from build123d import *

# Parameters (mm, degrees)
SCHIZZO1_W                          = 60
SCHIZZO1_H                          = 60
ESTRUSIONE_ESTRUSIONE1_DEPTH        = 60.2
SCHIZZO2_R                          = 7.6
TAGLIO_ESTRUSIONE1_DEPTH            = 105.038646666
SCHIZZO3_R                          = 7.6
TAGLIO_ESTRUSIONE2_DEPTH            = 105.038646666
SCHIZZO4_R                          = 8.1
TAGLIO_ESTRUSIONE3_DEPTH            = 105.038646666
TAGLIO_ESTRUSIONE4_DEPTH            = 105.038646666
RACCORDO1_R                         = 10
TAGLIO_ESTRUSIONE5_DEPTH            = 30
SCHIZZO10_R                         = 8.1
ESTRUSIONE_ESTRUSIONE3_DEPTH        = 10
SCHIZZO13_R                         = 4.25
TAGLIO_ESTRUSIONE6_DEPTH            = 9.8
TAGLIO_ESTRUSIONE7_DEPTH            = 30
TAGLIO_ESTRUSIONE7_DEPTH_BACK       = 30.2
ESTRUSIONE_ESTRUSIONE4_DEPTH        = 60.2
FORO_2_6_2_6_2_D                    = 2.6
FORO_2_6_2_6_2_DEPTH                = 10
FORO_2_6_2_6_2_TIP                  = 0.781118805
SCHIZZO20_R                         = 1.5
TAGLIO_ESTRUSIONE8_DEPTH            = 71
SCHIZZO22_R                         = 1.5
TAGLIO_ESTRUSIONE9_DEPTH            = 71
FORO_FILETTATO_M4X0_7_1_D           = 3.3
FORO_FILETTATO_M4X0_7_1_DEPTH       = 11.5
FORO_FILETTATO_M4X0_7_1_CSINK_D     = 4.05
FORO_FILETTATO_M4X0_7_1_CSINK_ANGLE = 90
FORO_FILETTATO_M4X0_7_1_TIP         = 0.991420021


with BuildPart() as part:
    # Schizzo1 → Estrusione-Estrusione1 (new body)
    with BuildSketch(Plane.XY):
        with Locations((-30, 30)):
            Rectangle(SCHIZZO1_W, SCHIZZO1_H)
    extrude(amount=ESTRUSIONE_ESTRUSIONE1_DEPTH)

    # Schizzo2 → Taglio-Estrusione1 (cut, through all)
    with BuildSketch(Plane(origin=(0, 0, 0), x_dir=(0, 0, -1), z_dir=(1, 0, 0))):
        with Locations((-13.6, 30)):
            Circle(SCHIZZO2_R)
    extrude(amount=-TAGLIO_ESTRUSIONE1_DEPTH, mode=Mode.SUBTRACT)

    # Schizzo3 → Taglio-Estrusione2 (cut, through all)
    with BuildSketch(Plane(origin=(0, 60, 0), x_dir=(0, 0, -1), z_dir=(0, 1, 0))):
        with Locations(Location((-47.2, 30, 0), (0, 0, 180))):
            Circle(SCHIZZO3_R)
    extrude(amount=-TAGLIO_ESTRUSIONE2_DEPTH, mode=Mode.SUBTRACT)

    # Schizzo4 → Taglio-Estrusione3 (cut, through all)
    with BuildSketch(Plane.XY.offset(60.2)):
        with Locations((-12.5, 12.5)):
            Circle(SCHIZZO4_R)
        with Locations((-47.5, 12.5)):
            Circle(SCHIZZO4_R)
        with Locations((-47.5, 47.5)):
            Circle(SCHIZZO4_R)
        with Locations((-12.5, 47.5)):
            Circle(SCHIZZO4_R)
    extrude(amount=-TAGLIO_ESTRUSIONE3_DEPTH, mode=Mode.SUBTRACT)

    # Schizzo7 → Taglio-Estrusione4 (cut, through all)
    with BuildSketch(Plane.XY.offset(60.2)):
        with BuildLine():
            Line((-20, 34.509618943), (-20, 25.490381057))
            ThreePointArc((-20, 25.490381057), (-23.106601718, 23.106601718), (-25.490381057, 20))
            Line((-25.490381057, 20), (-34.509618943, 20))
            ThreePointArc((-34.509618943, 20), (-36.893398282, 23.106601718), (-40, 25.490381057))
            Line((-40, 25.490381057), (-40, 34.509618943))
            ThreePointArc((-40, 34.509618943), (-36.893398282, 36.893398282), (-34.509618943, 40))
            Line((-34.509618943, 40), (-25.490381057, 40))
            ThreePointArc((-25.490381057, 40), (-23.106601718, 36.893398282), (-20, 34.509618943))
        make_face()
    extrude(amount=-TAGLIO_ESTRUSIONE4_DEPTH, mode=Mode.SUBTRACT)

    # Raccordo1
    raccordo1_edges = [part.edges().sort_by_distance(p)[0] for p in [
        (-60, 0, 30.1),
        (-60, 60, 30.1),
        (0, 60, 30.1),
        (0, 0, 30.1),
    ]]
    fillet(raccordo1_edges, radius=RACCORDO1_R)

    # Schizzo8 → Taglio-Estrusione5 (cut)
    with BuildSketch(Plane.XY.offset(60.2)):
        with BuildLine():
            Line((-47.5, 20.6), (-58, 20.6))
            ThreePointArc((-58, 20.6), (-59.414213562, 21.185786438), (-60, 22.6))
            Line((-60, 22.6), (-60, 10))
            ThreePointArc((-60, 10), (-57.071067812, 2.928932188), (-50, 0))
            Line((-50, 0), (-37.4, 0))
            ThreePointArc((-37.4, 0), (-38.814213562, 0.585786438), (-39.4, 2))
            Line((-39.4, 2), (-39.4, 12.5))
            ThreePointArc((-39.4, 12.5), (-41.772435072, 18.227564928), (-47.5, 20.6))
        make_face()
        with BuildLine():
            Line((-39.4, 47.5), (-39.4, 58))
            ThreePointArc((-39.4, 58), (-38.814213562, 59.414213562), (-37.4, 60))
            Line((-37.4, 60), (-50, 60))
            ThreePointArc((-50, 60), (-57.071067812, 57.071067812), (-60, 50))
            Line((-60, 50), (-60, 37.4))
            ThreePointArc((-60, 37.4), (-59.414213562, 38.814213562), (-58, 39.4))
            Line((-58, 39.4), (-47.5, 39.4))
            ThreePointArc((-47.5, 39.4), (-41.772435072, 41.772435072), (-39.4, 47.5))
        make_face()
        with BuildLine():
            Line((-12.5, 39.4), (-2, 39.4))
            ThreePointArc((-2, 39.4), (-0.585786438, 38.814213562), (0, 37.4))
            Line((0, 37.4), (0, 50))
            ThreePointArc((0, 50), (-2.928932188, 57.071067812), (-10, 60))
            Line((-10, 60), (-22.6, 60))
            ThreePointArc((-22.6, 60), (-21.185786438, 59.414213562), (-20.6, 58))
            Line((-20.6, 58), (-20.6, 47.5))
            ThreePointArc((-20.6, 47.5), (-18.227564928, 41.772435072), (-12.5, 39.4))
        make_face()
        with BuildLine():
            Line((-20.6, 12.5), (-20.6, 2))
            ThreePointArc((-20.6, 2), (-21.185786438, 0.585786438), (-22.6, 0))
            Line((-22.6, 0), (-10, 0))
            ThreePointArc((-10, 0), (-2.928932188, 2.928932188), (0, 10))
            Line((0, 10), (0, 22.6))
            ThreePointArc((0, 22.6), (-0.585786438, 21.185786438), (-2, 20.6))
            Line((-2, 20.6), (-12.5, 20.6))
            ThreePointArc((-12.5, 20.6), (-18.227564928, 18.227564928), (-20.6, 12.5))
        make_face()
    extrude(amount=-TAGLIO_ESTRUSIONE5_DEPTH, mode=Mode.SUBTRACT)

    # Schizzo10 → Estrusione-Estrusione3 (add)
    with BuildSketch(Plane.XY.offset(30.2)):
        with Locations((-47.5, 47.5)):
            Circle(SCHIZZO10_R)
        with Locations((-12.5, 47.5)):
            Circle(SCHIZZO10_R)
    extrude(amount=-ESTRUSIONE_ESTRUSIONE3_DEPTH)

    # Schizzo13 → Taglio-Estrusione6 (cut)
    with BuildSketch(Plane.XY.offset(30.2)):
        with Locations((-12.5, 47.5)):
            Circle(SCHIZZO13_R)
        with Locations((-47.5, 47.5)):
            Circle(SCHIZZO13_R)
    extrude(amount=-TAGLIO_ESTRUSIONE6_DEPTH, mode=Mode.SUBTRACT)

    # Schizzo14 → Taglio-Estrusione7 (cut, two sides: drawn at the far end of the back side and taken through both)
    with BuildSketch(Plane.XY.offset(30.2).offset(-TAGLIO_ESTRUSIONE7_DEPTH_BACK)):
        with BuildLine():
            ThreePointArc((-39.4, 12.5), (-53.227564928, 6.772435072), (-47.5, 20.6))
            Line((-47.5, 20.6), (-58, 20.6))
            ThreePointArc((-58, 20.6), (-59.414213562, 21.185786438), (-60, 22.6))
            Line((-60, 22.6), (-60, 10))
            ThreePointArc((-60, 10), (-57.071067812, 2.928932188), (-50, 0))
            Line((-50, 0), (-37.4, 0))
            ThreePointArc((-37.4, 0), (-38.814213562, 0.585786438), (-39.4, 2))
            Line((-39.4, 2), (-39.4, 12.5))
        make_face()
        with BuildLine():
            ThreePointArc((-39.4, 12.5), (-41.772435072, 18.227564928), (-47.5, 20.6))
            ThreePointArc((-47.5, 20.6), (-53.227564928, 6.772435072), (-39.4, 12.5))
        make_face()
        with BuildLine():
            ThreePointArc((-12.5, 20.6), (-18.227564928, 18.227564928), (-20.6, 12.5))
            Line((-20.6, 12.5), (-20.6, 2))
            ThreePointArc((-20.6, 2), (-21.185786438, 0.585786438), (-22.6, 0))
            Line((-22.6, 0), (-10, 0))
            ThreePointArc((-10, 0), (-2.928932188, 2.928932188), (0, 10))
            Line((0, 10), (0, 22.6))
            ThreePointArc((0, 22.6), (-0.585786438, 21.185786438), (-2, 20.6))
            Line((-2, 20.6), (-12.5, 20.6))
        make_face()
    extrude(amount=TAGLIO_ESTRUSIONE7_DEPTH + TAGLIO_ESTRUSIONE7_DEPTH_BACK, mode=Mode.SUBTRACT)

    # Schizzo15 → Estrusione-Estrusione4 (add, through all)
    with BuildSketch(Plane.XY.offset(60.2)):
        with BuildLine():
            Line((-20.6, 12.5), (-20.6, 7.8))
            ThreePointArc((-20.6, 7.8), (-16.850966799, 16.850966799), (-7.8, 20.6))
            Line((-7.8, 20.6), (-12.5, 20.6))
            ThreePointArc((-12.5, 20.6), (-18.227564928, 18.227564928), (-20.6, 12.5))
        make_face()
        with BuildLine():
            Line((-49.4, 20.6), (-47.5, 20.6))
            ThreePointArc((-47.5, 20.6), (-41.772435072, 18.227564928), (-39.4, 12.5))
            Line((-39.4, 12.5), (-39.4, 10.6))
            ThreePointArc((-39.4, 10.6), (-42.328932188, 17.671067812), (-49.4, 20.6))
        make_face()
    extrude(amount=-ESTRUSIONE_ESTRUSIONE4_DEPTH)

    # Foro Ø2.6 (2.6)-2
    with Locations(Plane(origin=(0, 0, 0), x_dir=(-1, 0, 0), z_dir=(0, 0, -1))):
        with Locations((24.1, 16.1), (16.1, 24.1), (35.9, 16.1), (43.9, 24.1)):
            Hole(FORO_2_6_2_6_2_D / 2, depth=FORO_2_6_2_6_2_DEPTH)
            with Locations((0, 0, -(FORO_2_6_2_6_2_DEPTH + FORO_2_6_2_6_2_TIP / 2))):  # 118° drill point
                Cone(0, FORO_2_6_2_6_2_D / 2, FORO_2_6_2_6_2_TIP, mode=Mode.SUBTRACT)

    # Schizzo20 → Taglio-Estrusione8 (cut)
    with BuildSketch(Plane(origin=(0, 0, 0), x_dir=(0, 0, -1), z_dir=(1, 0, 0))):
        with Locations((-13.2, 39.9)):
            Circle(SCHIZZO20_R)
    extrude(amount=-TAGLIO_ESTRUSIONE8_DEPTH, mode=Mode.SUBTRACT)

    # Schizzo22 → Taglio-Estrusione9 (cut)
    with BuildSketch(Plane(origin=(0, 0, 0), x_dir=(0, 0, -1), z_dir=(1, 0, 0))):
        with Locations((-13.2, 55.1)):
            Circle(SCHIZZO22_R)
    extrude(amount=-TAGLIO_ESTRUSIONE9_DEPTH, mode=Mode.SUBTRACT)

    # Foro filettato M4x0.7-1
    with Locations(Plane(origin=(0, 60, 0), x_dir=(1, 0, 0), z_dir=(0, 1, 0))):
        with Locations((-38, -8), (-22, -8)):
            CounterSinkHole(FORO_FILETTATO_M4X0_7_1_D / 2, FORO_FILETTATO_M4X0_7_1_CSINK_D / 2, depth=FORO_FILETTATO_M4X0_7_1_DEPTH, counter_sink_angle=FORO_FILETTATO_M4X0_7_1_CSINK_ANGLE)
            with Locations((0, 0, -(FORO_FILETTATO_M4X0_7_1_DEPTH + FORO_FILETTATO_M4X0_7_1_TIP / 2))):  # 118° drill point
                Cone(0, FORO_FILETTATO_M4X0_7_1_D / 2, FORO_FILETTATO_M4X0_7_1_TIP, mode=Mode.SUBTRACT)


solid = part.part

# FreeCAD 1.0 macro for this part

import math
import FreeCAD as App
import Part
import Sketcher

V = App.Vector
Q = App.Units.Quantity


def edges_at(feature, points):
    """Names of the edges that pass closest to the given points."""
    edges = feature.Shape.Edges
    near = lambda p: min(range(len(edges)), key=lambda i: edges[i].distToShape(Part.Vertex(*p))[0])
    return sorted({f"Edge{near(p) + 1}" for p in points})

doc = App.newDocument("Part")
body = doc.addObject("PartDesign::Body", "Body")

# Sketch on XY plane
sketch1 = doc.addObject("Sketcher::SketchObject", "Sketch")
body.addObject(sketch1)
sketch1.AttachmentSupport = (doc.XY_Plane, [""])
sketch1.MapMode = "FlatFace"
sketch1.addGeometry([
    Part.LineSegment(V(-60, 60, 0), V(-60, 0, 0)),
    Part.LineSegment(V(-60, 0, 0), V(0, 0, 0)),
    Part.LineSegment(V(0, 0, 0), V(0, 60, 0)),
    Part.LineSegment(V(0, 60, 0), V(-60, 60, 0)),
], False)
sketch1.addConstraint([
    Sketcher.Constraint("Coincident", 0, 2, 1, 1),
    Sketcher.Constraint("Coincident", 1, 2, 2, 1),
    Sketcher.Constraint("Coincident", 2, 2, 3, 1),
    Sketcher.Constraint("Coincident", 3, 2, 0, 1),
    Sketcher.Constraint("Vertical", 0),
    Sketcher.Constraint("Horizontal", 1),
    Sketcher.Constraint("Vertical", 2),
    Sketcher.Constraint("Horizontal", 3),
    Sketcher.Constraint("Coincident", 1, 2, -1, 1),
    Sketcher.Constraint("Equal", 3, 0),
    Sketcher.Constraint("DistanceX", 1, 1, 1, 2, Q("60 mm")),
])
pad1 = doc.addObject("PartDesign::Pad", "Pad")
body.addObject(pad1)
pad1.Profile = sketch1
pad1.Length = 60.2

# Sketch on YZ plane
sketch2 = doc.addObject("Sketcher::SketchObject", "Sketch001")
body.addObject(sketch2)
sketch2.AttachmentSupport = (doc.YZ_Plane, [""])
sketch2.MapMode = "FlatFace"
sketch2.addGeometry(Part.Circle(V(30, 13.6, 0), V(0, 0, 1), 7.6), False)
sketch2.addConstraint([
    Sketcher.Constraint("Diameter", 0, Q("15.2 mm")),
    Sketcher.Constraint("DistanceX", -1, 1, 0, 3, Q("30 mm")),
    Sketcher.Constraint("DistanceY", -1, 1, 0, 3, Q("13.6 mm")),
])
pocket1 = doc.addObject("PartDesign::Pocket", "Pocket")
body.addObject(pocket1)
pocket1.Profile = sketch2
pocket1.Type = "ThroughAll"

# Sketch on XZ plane
sketch3 = doc.addObject("Sketcher::SketchObject", "Sketch002")
body.addObject(sketch3)
sketch3.AttachmentSupport = (doc.XZ_Plane, [""])
sketch3.MapMode = "FlatFace"
sketch3.AttachmentOffset = App.Placement(V(0, 0, -60), App.Rotation())
sketch3.addGeometry(Part.Circle(V(-30, 47.2, 0), V(0, 0, 1), 7.6), False)
sketch3.addConstraint([
    Sketcher.Constraint("Diameter", 0, Q("15.2 mm")),
    Sketcher.Constraint("DistanceX", 0, 3, -1, 1, Q("30 mm")),
    Sketcher.Constraint("DistanceY", -1, 1, 0, 3, Q("47.2 mm")),
])
pocket2 = doc.addObject("PartDesign::Pocket", "Pocket001")
body.addObject(pocket2)
pocket2.Profile = sketch3
pocket2.Type = "ThroughAll"
pocket2.Reversed = True

# Sketch on XY plane
sketch4 = doc.addObject("Sketcher::SketchObject", "Sketch003")
body.addObject(sketch4)
sketch4.AttachmentSupport = (doc.XY_Plane, [""])
sketch4.MapMode = "FlatFace"
sketch4.AttachmentOffset = App.Placement(V(0, 0, 60.2), App.Rotation())
sketch4.addGeometry([
    Part.Circle(V(-12.5, 12.5, 0), V(0, 0, 1), 8.1),
    Part.Circle(V(-47.5, 12.5, 0), V(0, 0, 1), 8.1),
    Part.Circle(V(-47.5, 47.5, 0), V(0, 0, 1), 8.1),
    Part.Circle(V(-12.5, 47.5, 0), V(0, 0, 1), 8.1),
], False)
sketch4.addConstraint([
    Sketcher.Constraint("Equal", 0, 1),
    Sketcher.Constraint("Equal", 1, 2),
    Sketcher.Constraint("Equal", 2, 3),
    Sketcher.Constraint("Horizontal", 0, 3, 1, 3),
    Sketcher.Constraint("Horizontal", 2, 3, 3, 3),
    Sketcher.Constraint("Vertical", 1, 3, 2, 3),
    Sketcher.Constraint("Vertical", 0, 3, 3, 3),
    Sketcher.Constraint("Diameter", 0, Q("16.2 mm")),
    Sketcher.Constraint("DistanceX", 1, 3, 0, 3, Q("35 mm")),
    Sketcher.Constraint("DistanceY", 1, 3, 2, 3, Q("35 mm")),
    Sketcher.Constraint("DistanceX", 0, 3, -1, 1, Q("12.5 mm")),
    Sketcher.Constraint("DistanceY", -1, 1, 0, 3, Q("12.5 mm")),
])
pocket3 = doc.addObject("PartDesign::Pocket", "Pocket002")
body.addObject(pocket3)
pocket3.Profile = sketch4
pocket3.Type = "ThroughAll"

# Sketch on XY plane
sketch5 = doc.addObject("Sketcher::SketchObject", "Sketch004")
body.addObject(sketch5)
sketch5.AttachmentSupport = (doc.XY_Plane, [""])
sketch5.MapMode = "FlatFace"
sketch5.AttachmentOffset = App.Placement(V(0, 0, 60.2), App.Rotation())
sketch5.addGeometry([
    Part.LineSegment(V(-20, 25.490381, 0), V(-20, 34.509619, 0)),  # 0
    Part.ArcOfCircle(Part.Circle(V(-12.5, 47.5, 0), V(0, 0, 1), 15), math.radians(-150), math.radians(-120)),  # 1
    Part.LineSegment(V(-25.490381, 40, 0), V(-34.509619, 40, 0)),  # 2
    Part.ArcOfCircle(Part.Circle(V(-47.5, 47.5, 0), V(0, 0, 1), 15), math.radians(-60), math.radians(-30)),  # 3
    Part.LineSegment(V(-40, 34.509619, 0), V(-40, 25.490381, 0)),  # 4
    Part.ArcOfCircle(Part.Circle(V(-47.5, 12.5, 0), V(0, 0, 1), 15), math.radians(30), math.radians(60)),  # 5
    Part.LineSegment(V(-34.509619, 20, 0), V(-25.490381, 20, 0)),  # 6
    Part.ArcOfCircle(Part.Circle(V(-12.5, 12.5, 0), V(0, 0, 1), 15), math.radians(120), math.radians(150)),  # 7
], False)
sketch5.addConstraint([
    Sketcher.Constraint("Coincident", 0, 2, 1, 2),
    Sketcher.Constraint("Coincident", 1, 1, 2, 1),
    Sketcher.Constraint("Coincident", 2, 2, 3, 2),
    Sketcher.Constraint("Coincident", 3, 1, 4, 1),
    Sketcher.Constraint("Coincident", 4, 2, 5, 2),
    Sketcher.Constraint("Coincident", 5, 1, 6, 1),
    Sketcher.Constraint("Coincident", 6, 2, 7, 2),
    Sketcher.Constraint("Coincident", 7, 1, 0, 1),
    Sketcher.Constraint("Vertical", 0),
    Sketcher.Constraint("Horizontal", 2),
    Sketcher.Constraint("Vertical", 4),
    Sketcher.Constraint("Horizontal", 6),
    Sketcher.Constraint("Equal", 1, 3),
    Sketcher.Constraint("Equal", 3, 5),
    Sketcher.Constraint("Equal", 5, 7),
    Sketcher.Constraint("Horizontal", 1, 3, 3, 3),
    Sketcher.Constraint("Horizontal", 5, 3, 7, 3),
    Sketcher.Constraint("Horizontal", 0, 2, 3, 1),
    Sketcher.Constraint("Horizontal", 4, 2, 7, 1),
    Sketcher.Constraint("Vertical", 3, 3, 5, 3),
    Sketcher.Constraint("Vertical", 2, 2, 5, 1),
    Sketcher.Constraint("Equal", 6, 0),
    Sketcher.Constraint("Radius", 1, Q("15 mm")),
    Sketcher.Constraint("DistanceX", 0, 2, -1, 1, Q("20 mm")),
    Sketcher.Constraint("DistanceY", -1, 1, 1, 1, Q("40 mm")),
    Sketcher.Constraint("DistanceX", 3, 1, -1, 1, Q("40 mm")),
    Sketcher.Constraint("DistanceY", -1, 1, 5, 1, Q("20 mm")),
    Sketcher.Constraint("DistanceX", 3, 3, 1, 3, Q("35 mm")),
])
pocket4 = doc.addObject("PartDesign::Pocket", "Pocket003")
body.addObject(pocket4)
pocket4.Profile = sketch5
pocket4.Type = "ThroughAll"
doc.recompute()

fillet = doc.addObject("PartDesign::Fillet", "Fillet")
body.addObject(fillet)
fillet.Base = (pocket4, edges_at(pocket4, [
    (-60, 0, 30.1),
    (-60, 60, 30.1),
    (0, 60, 30.1),
    (0, 0, 30.1),
]))
fillet.Radius = 10

# Sketch on XY plane
sketch6 = doc.addObject("Sketcher::SketchObject", "Sketch005")
body.addObject(sketch6)
sketch6.AttachmentSupport = (doc.XY_Plane, [""])
sketch6.MapMode = "FlatFace"
sketch6.AttachmentOffset = App.Placement(V(0, 0, 60.2), App.Rotation())
sketch6.addGeometry([
    Part.LineSegment(V(-47.5, 20.6, 0), V(-58, 20.6, 0)),  # 0
    Part.ArcOfCircle(Part.Circle(V(-58, 22.6, 0), V(0, 0, 1), 2), math.radians(-180), math.radians(-90)),  # 1
    Part.LineSegment(V(-60, 22.6, 0), V(-60, 10, 0)),  # 2
    Part.ArcOfCircle(Part.Circle(V(-50, 10, 0), V(0, 0, 1), 10), math.radians(180), math.radians(270)),  # 3
    Part.LineSegment(V(-50, 0, 0), V(-37.4, 0, 0)),  # 4
    Part.ArcOfCircle(Part.Circle(V(-37.4, 2, 0), V(0, 0, 1), 2), math.radians(-180), math.radians(-90)),  # 5
    Part.LineSegment(V(-39.4, 2, 0), V(-39.4, 12.5, 0)),  # 6
    Part.ArcOfCircle(Part.Circle(V(-47.5, 12.5, 0), V(0, 0, 1), 8.1), math.radians(0), math.radians(90)),  # 7
    Part.LineSegment(V(-39.4, 47.5, 0), V(-39.4, 58, 0)),  # 8
    Part.ArcOfCircle(Part.Circle(V(-37.4, 58, 0), V(0, 0, 1), 2), math.radians(90), math.radians(180)),  # 9
    Part.LineSegment(V(-37.4, 60, 0), V(-50, 60, 0)),  # 10
    Part.ArcOfCircle(Part.Circle(V(-50, 50, 0), V(0, 0, 1), 10), math.radians(90), math.radians(180)),  # 11
    Part.LineSegment(V(-60, 50, 0), V(-60, 37.4, 0)),  # 12
    Part.ArcOfCircle(Part.Circle(V(-58, 37.4, 0), V(0, 0, 1), 2), math.radians(90), math.radians(180)),  # 13
    Part.LineSegment(V(-58, 39.4, 0), V(-47.5, 39.4, 0)),  # 14
    Part.ArcOfCircle(Part.Circle(V(-47.5, 47.5, 0), V(0, 0, 1), 8.1), math.radians(-90), math.radians(0)),  # 15
    Part.LineSegment(V(-12.5, 39.4, 0), V(-2, 39.4, 0)),  # 16
    Part.ArcOfCircle(Part.Circle(V(-2, 37.4, 0), V(0, 0, 1), 2), math.radians(0), math.radians(90)),  # 17
    Part.LineSegment(V(0, 37.4, 0), V(0, 50, 0)),  # 18
    Part.ArcOfCircle(Part.Circle(V(-10, 50, 0), V(0, 0, 1), 10), math.radians(0), math.radians(90)),  # 19
    Part.LineSegment(V(-10, 60, 0), V(-22.6, 60, 0)),  # 20
    Part.ArcOfCircle(Part.Circle(V(-22.6, 58, 0), V(0, 0, 1), 2), math.radians(0), math.radians(90)),  # 21
    Part.LineSegment(V(-20.6, 58, 0), V(-20.6, 47.5, 0)),  # 22
    Part.ArcOfCircle(Part.Circle(V(-12.5, 47.5, 0), V(0, 0, 1), 8.1), math.radians(180), math.radians(270)),  # 23
    Part.LineSegment(V(-20.6, 12.5, 0), V(-20.6, 2, 0)),  # 24
    Part.ArcOfCircle(Part.Circle(V(-22.6, 2, 0), V(0, 0, 1), 2), math.radians(-90), math.radians(0)),  # 25
    Part.LineSegment(V(-22.6, 0, 0), V(-10, 0, 0)),  # 26
    Part.ArcOfCircle(Part.Circle(V(-10, 10, 0), V(0, 0, 1), 10), math.radians(-90), math.radians(0)),  # 27
    Part.LineSegment(V(0, 10, 0), V(0, 22.6, 0)),  # 28
    Part.ArcOfCircle(Part.Circle(V(-2, 22.6, 0), V(0, 0, 1), 2), math.radians(-90), math.radians(0)),  # 29
    Part.LineSegment(V(-2, 20.6, 0), V(-12.5, 20.6, 0)),  # 30
    Part.ArcOfCircle(Part.Circle(V(-12.5, 12.5, 0), V(0, 0, 1), 8.1), math.radians(90), math.radians(180)),  # 31
], False)
sketch6.addConstraint([
    Sketcher.Constraint("Tangent", 0, 2, 1, 2),
    Sketcher.Constraint("Tangent", 1, 1, 2, 1),
    Sketcher.Constraint("Tangent", 2, 2, 3, 1),
    Sketcher.Constraint("Tangent", 3, 2, 4, 1),
    Sketcher.Constraint("Tangent", 4, 2, 5, 2),
    Sketcher.Constraint("Tangent", 5, 1, 6, 1),
    Sketcher.Constraint("Tangent", 6, 2, 7, 1),
    Sketcher.Constraint("Tangent", 7, 2, 0, 1),
    Sketcher.Constraint("Tangent", 8, 2, 9, 2),
    Sketcher.Constraint("Tangent", 9, 1, 10, 1),
    Sketcher.Constraint("Tangent", 10, 2, 11, 1),
    Sketcher.Constraint("Tangent", 11, 2, 12, 1),
    Sketcher.Constraint("Tangent", 12, 2, 13, 2),
    Sketcher.Constraint("Tangent", 13, 1, 14, 1),
    Sketcher.Constraint("Tangent", 14, 2, 15, 1),
    Sketcher.Constraint("Tangent", 15, 2, 8, 1),
    Sketcher.Constraint("Tangent", 16, 2, 17, 2),
    Sketcher.Constraint("Tangent", 17, 1, 18, 1),
    Sketcher.Constraint("Tangent", 18, 2, 19, 1),
    Sketcher.Constraint("Tangent", 19, 2, 20, 1),
    Sketcher.Constraint("Tangent", 20, 2, 21, 2),
    Sketcher.Constraint("Tangent", 21, 1, 22, 1),
    Sketcher.Constraint("Tangent", 22, 2, 23, 1),
    Sketcher.Constraint("Tangent", 23, 2, 16, 1),
    Sketcher.Constraint("Tangent", 24, 2, 25, 2),
    Sketcher.Constraint("Tangent", 25, 1, 26, 1),
    Sketcher.Constraint("Tangent", 26, 2, 27, 1),
    Sketcher.Constraint("Tangent", 27, 2, 28, 1),
    Sketcher.Constraint("Tangent", 28, 2, 29, 2),
    Sketcher.Constraint("Tangent", 29, 1, 30, 1),
    Sketcher.Constraint("Tangent", 30, 2, 31, 1),
    Sketcher.Constraint("Tangent", 31, 2, 24, 1),
    Sketcher.Constraint("Horizontal", 0),
    Sketcher.Constraint("Vertical", 2),
    Sketcher.Constraint("Horizontal", 4),
    Sketcher.Constraint("Vertical", 6),
    Sketcher.Constraint("Vertical", 8),
    Sketcher.Constraint("Horizontal", 10),
    Sketcher.Constraint("Vertical", 12),
    Sketcher.Constraint("Horizontal", 14),
    Sketcher.Constraint("Horizontal", 16),
    Sketcher.Constraint("Vertical", 18),
    Sketcher.Constraint("Horizontal", 20),
    Sketcher.Constraint("Vertical", 22),
    Sketcher.Constraint("Vertical", 24),
    Sketcher.Constraint("Horizontal", 26),
    Sketcher.Constraint("Vertical", 28),
    Sketcher.Constraint("Horizontal", 30),
    Sketcher.Constraint("Equal", 1, 5),
    Sketcher.Constraint("Equal", 5, 9),
    Sketcher.Constraint("Equal", 3, 11),
    Sketcher.Constraint("Equal", 9, 13),
    Sketcher.Constraint("Equal", 7, 15),
    Sketcher.Constraint("Equal", 13, 17),
    Sketcher.Constraint("Equal", 11, 19),
    Sketcher.Constraint("Equal", 17, 21),
    Sketcher.Constraint("Equal", 15, 23),
    Sketcher.Constraint("Equal", 21, 25),
    Sketcher.Constraint("Equal", 19, 27),
    Sketcher.Constraint("Equal", 25, 29),
    Sketcher.Constraint("Equal", 23, 31),
    Sketcher.Constraint("PointOnObject", 3, 2, -1),
    Sketcher.Constraint("PointOnObject", 17, 1, -2),
    Sketcher.Constraint("PointOnObject", 25, 1, -1),
    Sketcher.Constraint("PointOnObject", 27, 2, -2),
    Sketcher.Constraint("Horizontal", 13, 3, 17, 3),
    Sketcher.Constraint("Horizontal", 11, 3, 19, 3),
    Sketcher.Constraint("Horizontal", 1, 3, 29, 3),
    Sketcher.Constraint("Vertical", 5, 3, 9, 3),
    Sketcher.Constraint("Vertical", 3, 3, 11, 3),
    Sketcher.Constraint("Vertical", 21, 3, 25, 3),
    Sketcher.Constraint("Equal", 14, 16),
    Sketcher.Constraint("Equal", 26, 2),
    Sketcher.Constraint("Equal", 6, 8),
    Sketcher.Constraint("Radius", 1, Q("2 mm")),
    Sketcher.Constraint("Radius", 3, Q("10 mm")),
    Sketcher.Constraint("Radius", 7, Q("8.1 mm")),
    Sketcher.Constraint("DistanceX", 0, 2, 0, 1, Q("10.5 mm")),
    Sketcher.Constraint("DistanceX", 1, 3, -1, 1, Q("58 mm")),
    Sketcher.Constraint("DistanceY", -1, 1, 9, 3, Q("58 mm")),
])
pocket5 = doc.addObject("PartDesign::Pocket", "Pocket004")
body.addObject(pocket5)
pocket5.Profile = sketch6
pocket5.Length = 30

# Sketch on XY plane
sketch7 = doc.addObject("Sketcher::SketchObject", "Sketch006")
body.addObject(sketch7)
sketch7.AttachmentSupport = (doc.XY_Plane, [""])
sketch7.MapMode = "FlatFace"
sketch7.AttachmentOffset = App.Placement(V(0, 0, 30.2), App.Rotation())
sketch7.addGeometry([
    Part.Circle(V(-47.5, 47.5, 0), V(0, 0, 1), 8.1),
    Part.Circle(V(-12.5, 47.5, 0), V(0, 0, 1), 8.1),
], False)
sketch7.addConstraint([
    Sketcher.Constraint("Equal", 0, 1),
    Sketcher.Constraint("Horizontal", 0, 3, 1, 3),
    Sketcher.Constraint("Diameter", 0, Q("16.2 mm")),
    Sketcher.Constraint("DistanceX", 0, 3, 1, 3, Q("35 mm")),
    Sketcher.Constraint("DistanceX", 0, 3, -1, 1, Q("47.5 mm")),
    Sketcher.Constraint("DistanceY", -1, 1, 0, 3, Q("47.5 mm")),
])
pad2 = doc.addObject("PartDesign::Pad", "Pad001")
body.addObject(pad2)
pad2.Profile = sketch7
pad2.Length = 10
pad2.Reversed = True

# Sketch on XY plane
sketch8 = doc.addObject("Sketcher::SketchObject", "Sketch007")
body.addObject(sketch8)
sketch8.AttachmentSupport = (doc.XY_Plane, [""])
sketch8.MapMode = "FlatFace"
sketch8.AttachmentOffset = App.Placement(V(0, 0, 30.2), App.Rotation())
sketch8.addGeometry([
    Part.Circle(V(-12.5, 47.5, 0), V(0, 0, 1), 4.25),
    Part.Circle(V(-47.5, 47.5, 0), V(0, 0, 1), 4.25),
], False)
sketch8.addConstraint([
    Sketcher.Constraint("Equal", 0, 1),
    Sketcher.Constraint("Horizontal", 0, 3, 1, 3),
    Sketcher.Constraint("Diameter", 0, Q("8.5 mm")),
    Sketcher.Constraint("DistanceX", 1, 3, 0, 3, Q("35 mm")),
    Sketcher.Constraint("DistanceX", 0, 3, -1, 1, Q("12.5 mm")),
    Sketcher.Constraint("DistanceY", -1, 1, 0, 3, Q("47.5 mm")),
])
pocket6 = doc.addObject("PartDesign::Pocket", "Pocket005")
body.addObject(pocket6)
pocket6.Profile = sketch8
pocket6.Length = 9.8

# Sketch on XY plane
sketch9 = doc.addObject("Sketcher::SketchObject", "Sketch008")
body.addObject(sketch9)
sketch9.AttachmentSupport = (doc.XY_Plane, [""])
sketch9.MapMode = "FlatFace"
sketch9.AttachmentOffset = App.Placement(V(0, 0, 30.2), App.Rotation())
sketch9.addGeometry([
    Part.LineSegment(V(-47.5, 20.6, 0), V(-58, 20.6, 0)),  # 0
    Part.ArcOfCircle(Part.Circle(V(-58, 22.6, 0), V(0, 0, 1), 2), math.radians(-180), math.radians(-90)),  # 1
    Part.LineSegment(V(-60, 22.6, 0), V(-60, 10, 0)),  # 2
    Part.ArcOfCircle(Part.Circle(V(-50, 10, 0), V(0, 0, 1), 10), math.radians(180), math.radians(270)),  # 3
    Part.LineSegment(V(-50, 0, 0), V(-37.4, 0, 0)),  # 4
    Part.ArcOfCircle(Part.Circle(V(-37.4, 2, 0), V(0, 0, 1), 2), math.radians(-180), math.radians(-90)),  # 5
    Part.LineSegment(V(-39.4, 2, 0), V(-39.4, 12.5, 0)),  # 6
    Part.ArcOfCircle(Part.Circle(V(-47.5, 12.5, 0), V(0, 0, 1), 8.1), math.radians(0), math.radians(90)),  # 7
    Part.ArcOfCircle(Part.Circle(V(-12.5, 12.5, 0), V(0, 0, 1), 8.1), math.radians(90), math.radians(180)),  # 8
    Part.LineSegment(V(-20.6, 12.5, 0), V(-20.6, 2, 0)),  # 9
    Part.ArcOfCircle(Part.Circle(V(-22.6, 2, 0), V(0, 0, 1), 2), math.radians(-90), math.radians(0)),  # 10
    Part.LineSegment(V(-22.6, 0, 0), V(-10, 0, 0)),  # 11
    Part.ArcOfCircle(Part.Circle(V(-10, 10, 0), V(0, 0, 1), 10), math.radians(-90), math.radians(0)),  # 12
    Part.LineSegment(V(0, 10, 0), V(0, 22.6, 0)),  # 13
    Part.ArcOfCircle(Part.Circle(V(-2, 22.6, 0), V(0, 0, 1), 2), math.radians(-90), math.radians(0)),  # 14
    Part.LineSegment(V(-2, 20.6, 0), V(-12.5, 20.6, 0)),  # 15
], False)
sketch9.addConstraint([
    Sketcher.Constraint("Tangent", 0, 2, 1, 2),
    Sketcher.Constraint("Tangent", 1, 1, 2, 1),
    Sketcher.Constraint("Tangent", 2, 2, 3, 1),
    Sketcher.Constraint("Tangent", 3, 2, 4, 1),
    Sketcher.Constraint("Tangent", 4, 2, 5, 2),
    Sketcher.Constraint("Tangent", 5, 1, 6, 1),
    Sketcher.Constraint("Tangent", 6, 2, 7, 1),
    Sketcher.Constraint("Tangent", 7, 2, 0, 1),
    Sketcher.Constraint("Tangent", 8, 2, 9, 1),
    Sketcher.Constraint("Tangent", 9, 2, 10, 2),
    Sketcher.Constraint("Tangent", 10, 1, 11, 1),
    Sketcher.Constraint("Tangent", 11, 2, 12, 1),
    Sketcher.Constraint("Tangent", 12, 2, 13, 1),
    Sketcher.Constraint("Tangent", 13, 2, 14, 2),
    Sketcher.Constraint("Tangent", 14, 1, 15, 1),
    Sketcher.Constraint("Tangent", 15, 2, 8, 1),
    Sketcher.Constraint("Horizontal", 0),
    Sketcher.Constraint("Vertical", 2),
    Sketcher.Constraint("Horizontal", 4),
    Sketcher.Constraint("Vertical", 6),
    Sketcher.Constraint("Vertical", 9),
    Sketcher.Constraint("Horizontal", 11),
    Sketcher.Constraint("Vertical", 13),
    Sketcher.Constraint("Horizontal", 15),
    Sketcher.Constraint("Equal", 1, 5),
    Sketcher.Constraint("Equal", 7, 8),
    Sketcher.Constraint("Equal", 5, 10),
    Sketcher.Constraint("Equal", 3, 12),
    Sketcher.Constraint("Equal", 10, 14),
    Sketcher.Constraint("PointOnObject", 3, 2, -1),
    Sketcher.Constraint("PointOnObject", 10, 1, -1),
    Sketcher.Constraint("PointOnObject", 12, 2, -2),
    Sketcher.Constraint("Horizontal", 7, 3, 8, 3),
    Sketcher.Constraint("Equal", 4, 11),
    Sketcher.Constraint("Equal", 11, 2),
    Sketcher.Constraint("Radius", 1, Q("2 mm")),
    Sketcher.Constraint("Radius", 3, Q("10 mm")),
    Sketcher.Constraint("Radius", 7, Q("8.1 mm")),
    Sketcher.Constraint("DistanceX", 0, 2, 0, 1, Q("10.5 mm")),
    Sketcher.Constraint("DistanceX", 1, 3, -1, 1, Q("58 mm")),
])
pocket7 = doc.addObject("PartDesign::Pocket", "Pocket006")
body.addObject(pocket7)
pocket7.Profile = sketch9
pocket7.Type = "ThroughAll"
pocket7.Midplane = True

# Sketch on XY plane
sketch10 = doc.addObject("Sketcher::SketchObject", "Sketch009")
body.addObject(sketch10)
sketch10.AttachmentSupport = (doc.XY_Plane, [""])
sketch10.MapMode = "FlatFace"
sketch10.AttachmentOffset = App.Placement(V(0, 0, 60.2), App.Rotation())
sketch10.addGeometry([
    Part.LineSegment(V(-20.6, 12.5, 0), V(-20.6, 7.8, 0)),  # 0
    Part.ArcOfCircle(Part.Circle(V(-7.8, 7.8, 0), V(0, 0, 1), 12.8), math.radians(90), math.radians(180)),  # 1
    Part.LineSegment(V(-7.8, 20.6, 0), V(-12.5, 20.6, 0)),  # 2
    Part.ArcOfCircle(Part.Circle(V(-12.5, 12.5, 0), V(0, 0, 1), 8.1), math.radians(90), math.radians(180)),  # 3
    Part.LineSegment(V(-47.5, 20.6, 0), V(-49.4, 20.6, 0)),  # 4
    Part.ArcOfCircle(Part.Circle(V(-49.4, 10.6, 0), V(0, 0, 1), 10), math.radians(0), math.radians(90)),  # 5
    Part.LineSegment(V(-39.4, 10.6, 0), V(-39.4, 12.5, 0)),  # 6
    Part.ArcOfCircle(Part.Circle(V(-47.5, 12.5, 0), V(0, 0, 1), 8.1), math.radians(0), math.radians(90)),  # 7
], False)
sketch10.addConstraint([
    Sketcher.Constraint("Tangent", 0, 2, 1, 2),
    Sketcher.Constraint("Tangent", 1, 1, 2, 1),
    Sketcher.Constraint("Tangent", 2, 2, 3, 1),
    Sketcher.Constraint("Tangent", 3, 2, 0, 1),
    Sketcher.Constraint("Tangent", 4, 2, 5, 2),
    Sketcher.Constraint("Tangent", 5, 1, 6, 1),
    Sketcher.Constraint("Tangent", 6, 2, 7, 1),
    Sketcher.Constraint("Tangent", 7, 2, 4, 1),
    Sketcher.Constraint("Vertical", 0),
    Sketcher.Constraint("Horizontal", 2),
    Sketcher.Constraint("Horizontal", 4),
    Sketcher.Constraint("Vertical", 6),
    Sketcher.Constraint("Equal", 3, 7),
    Sketcher.Constraint("Horizontal", 3, 3, 7, 3),
    Sketcher.Constraint("Radius", 5, Q("10 mm")),
    Sketcher.Constraint("Radius", 1, Q("12.8 mm")),
    Sketcher.Constraint("Radius", 3, Q("8.1 mm")),
    Sketcher.Constraint("DistanceX", 7, 3, 3, 3, Q("35 mm")),
    Sketcher.Constraint("DistanceX", 1, 3, -1, 1, Q("7.8 mm")),
    Sketcher.Constraint("DistanceY", -1, 1, 1, 3, Q("7.8 mm")),
])
pad3 = doc.addObject("PartDesign::Pad", "Pad002")
body.addObject(pad3)
pad3.Profile = sketch10
pad3.Type = "UpToLast"
pad3.Reversed = True

# Sketch on XY plane
sketch11 = doc.addObject("Sketcher::SketchObject", "Sketch010")
body.addObject(sketch11)
sketch11.AttachmentSupport = (doc.XY_Plane, [""])
sketch11.MapMode = "FlatFace"
sketch11.addGeometry([
    Part.Circle(V(-24.1, 16.1, 0), V(0, 0, 1), 1.3),
    Part.Circle(V(-16.1, 24.1, 0), V(0, 0, 1), 1.3),
    Part.Circle(V(-35.9, 16.1, 0), V(0, 0, 1), 1.3),
    Part.Circle(V(-43.9, 24.1, 0), V(0, 0, 1), 1.3),
], False)
sketch11.addConstraint([
    Sketcher.Constraint("Equal", 0, 1),
    Sketcher.Constraint("Equal", 1, 2),
    Sketcher.Constraint("Equal", 2, 3),
    Sketcher.Constraint("Horizontal", 0, 3, 2, 3),
    Sketcher.Constraint("Horizontal", 1, 3, 3, 3),
    Sketcher.Constraint("Diameter", 0, Q("2.6 mm")),
    Sketcher.Constraint("DistanceX", 0, 3, 1, 3, Q("8 mm")),
    Sketcher.Constraint("DistanceY", 0, 3, 1, 3, Q("8 mm")),
    Sketcher.Constraint("DistanceX", 3, 3, 2, 3, Q("8 mm")),
    Sketcher.Constraint("DistanceX", 0, 3, -1, 1, Q("24.1 mm")),
    Sketcher.Constraint("DistanceY", -1, 1, 0, 3, Q("16.1 mm")),
    Sketcher.Constraint("DistanceX", 2, 3, -1, 1, Q("35.9 mm")),
])
doc.recompute()
hole = doc.addObject("PartDesign::Hole", "Hole")
body.addObject(hole)
hole.Profile = sketch11
hole.ThreadType = "None"
hole.Diameter = 2.6
hole.DepthType = "Dimension"
hole.Depth = 10
hole.DrillPoint = "Angled"
hole.DrillPointAngle = 118
hole.Reversed = True

# Sketch on YZ plane
sketch12 = doc.addObject("Sketcher::SketchObject", "Sketch011")
body.addObject(sketch12)
sketch12.AttachmentSupport = (doc.YZ_Plane, [""])
sketch12.MapMode = "FlatFace"
sketch12.addGeometry(Part.Circle(V(39.9, 13.2, 0), V(0, 0, 1), 1.5), False)
sketch12.addConstraint([
    Sketcher.Constraint("Diameter", 0, Q("3 mm")),
    Sketcher.Constraint("DistanceX", -1, 1, 0, 3, Q("39.9 mm")),
    Sketcher.Constraint("DistanceY", -1, 1, 0, 3, Q("13.2 mm")),
])
pocket8 = doc.addObject("PartDesign::Pocket", "Pocket007")
body.addObject(pocket8)
pocket8.Profile = sketch12
pocket8.Length = 71

# Sketch on YZ plane
sketch13 = doc.addObject("Sketcher::SketchObject", "Sketch012")
body.addObject(sketch13)
sketch13.AttachmentSupport = (doc.YZ_Plane, [""])
sketch13.MapMode = "FlatFace"
sketch13.addGeometry(Part.Circle(V(55.1, 13.2, 0), V(0, 0, 1), 1.5), False)
sketch13.addConstraint([
    Sketcher.Constraint("Diameter", 0, Q("3 mm")),
    Sketcher.Constraint("DistanceX", -1, 1, 0, 3, Q("55.1 mm")),
    Sketcher.Constraint("DistanceY", -1, 1, 0, 3, Q("13.2 mm")),
])
pocket9 = doc.addObject("PartDesign::Pocket", "Pocket008")
body.addObject(pocket9)
pocket9.Profile = sketch13
pocket9.Length = 71

# Sketch on XZ plane
sketch14 = doc.addObject("Sketcher::SketchObject", "Sketch013")
body.addObject(sketch14)
sketch14.AttachmentSupport = (doc.XZ_Plane, [""])
sketch14.MapMode = "FlatFace"
sketch14.AttachmentOffset = App.Placement(V(0, 0, -60), App.Rotation())
sketch14.addGeometry([
    Part.Circle(V(-38, 8, 0), V(0, 0, 1), 1.65),
    Part.Circle(V(-22, 8, 0), V(0, 0, 1), 1.65),
], False)
sketch14.addConstraint([
    Sketcher.Constraint("Equal", 0, 1),
    Sketcher.Constraint("Horizontal", 0, 3, 1, 3),
    Sketcher.Constraint("Diameter", 0, Q("3.3 mm")),
    Sketcher.Constraint("DistanceX", 0, 3, -1, 1, Q("38 mm")),
    Sketcher.Constraint("DistanceY", -1, 1, 0, 3, Q("8 mm")),
    Sketcher.Constraint("DistanceX", 1, 3, -1, 1, Q("22 mm")),
])
doc.recompute()
hole2 = doc.addObject("PartDesign::Hole", "Hole001")
body.addObject(hole2)
hole2.Profile = sketch14
hole2.ThreadType = "None"
hole2.Diameter = 3.3
hole2.DepthType = "Dimension"
hole2.Depth = 11.5
hole2.DrillPoint = "Angled"
hole2.DrillPointAngle = 118
hole2.HoleCutType = "Countersink"
hole2.HoleCutDiameter = 4.05
hole2.HoleCutCountersinkAngle = 90
hole2.Reversed = True

doc.recompute()
